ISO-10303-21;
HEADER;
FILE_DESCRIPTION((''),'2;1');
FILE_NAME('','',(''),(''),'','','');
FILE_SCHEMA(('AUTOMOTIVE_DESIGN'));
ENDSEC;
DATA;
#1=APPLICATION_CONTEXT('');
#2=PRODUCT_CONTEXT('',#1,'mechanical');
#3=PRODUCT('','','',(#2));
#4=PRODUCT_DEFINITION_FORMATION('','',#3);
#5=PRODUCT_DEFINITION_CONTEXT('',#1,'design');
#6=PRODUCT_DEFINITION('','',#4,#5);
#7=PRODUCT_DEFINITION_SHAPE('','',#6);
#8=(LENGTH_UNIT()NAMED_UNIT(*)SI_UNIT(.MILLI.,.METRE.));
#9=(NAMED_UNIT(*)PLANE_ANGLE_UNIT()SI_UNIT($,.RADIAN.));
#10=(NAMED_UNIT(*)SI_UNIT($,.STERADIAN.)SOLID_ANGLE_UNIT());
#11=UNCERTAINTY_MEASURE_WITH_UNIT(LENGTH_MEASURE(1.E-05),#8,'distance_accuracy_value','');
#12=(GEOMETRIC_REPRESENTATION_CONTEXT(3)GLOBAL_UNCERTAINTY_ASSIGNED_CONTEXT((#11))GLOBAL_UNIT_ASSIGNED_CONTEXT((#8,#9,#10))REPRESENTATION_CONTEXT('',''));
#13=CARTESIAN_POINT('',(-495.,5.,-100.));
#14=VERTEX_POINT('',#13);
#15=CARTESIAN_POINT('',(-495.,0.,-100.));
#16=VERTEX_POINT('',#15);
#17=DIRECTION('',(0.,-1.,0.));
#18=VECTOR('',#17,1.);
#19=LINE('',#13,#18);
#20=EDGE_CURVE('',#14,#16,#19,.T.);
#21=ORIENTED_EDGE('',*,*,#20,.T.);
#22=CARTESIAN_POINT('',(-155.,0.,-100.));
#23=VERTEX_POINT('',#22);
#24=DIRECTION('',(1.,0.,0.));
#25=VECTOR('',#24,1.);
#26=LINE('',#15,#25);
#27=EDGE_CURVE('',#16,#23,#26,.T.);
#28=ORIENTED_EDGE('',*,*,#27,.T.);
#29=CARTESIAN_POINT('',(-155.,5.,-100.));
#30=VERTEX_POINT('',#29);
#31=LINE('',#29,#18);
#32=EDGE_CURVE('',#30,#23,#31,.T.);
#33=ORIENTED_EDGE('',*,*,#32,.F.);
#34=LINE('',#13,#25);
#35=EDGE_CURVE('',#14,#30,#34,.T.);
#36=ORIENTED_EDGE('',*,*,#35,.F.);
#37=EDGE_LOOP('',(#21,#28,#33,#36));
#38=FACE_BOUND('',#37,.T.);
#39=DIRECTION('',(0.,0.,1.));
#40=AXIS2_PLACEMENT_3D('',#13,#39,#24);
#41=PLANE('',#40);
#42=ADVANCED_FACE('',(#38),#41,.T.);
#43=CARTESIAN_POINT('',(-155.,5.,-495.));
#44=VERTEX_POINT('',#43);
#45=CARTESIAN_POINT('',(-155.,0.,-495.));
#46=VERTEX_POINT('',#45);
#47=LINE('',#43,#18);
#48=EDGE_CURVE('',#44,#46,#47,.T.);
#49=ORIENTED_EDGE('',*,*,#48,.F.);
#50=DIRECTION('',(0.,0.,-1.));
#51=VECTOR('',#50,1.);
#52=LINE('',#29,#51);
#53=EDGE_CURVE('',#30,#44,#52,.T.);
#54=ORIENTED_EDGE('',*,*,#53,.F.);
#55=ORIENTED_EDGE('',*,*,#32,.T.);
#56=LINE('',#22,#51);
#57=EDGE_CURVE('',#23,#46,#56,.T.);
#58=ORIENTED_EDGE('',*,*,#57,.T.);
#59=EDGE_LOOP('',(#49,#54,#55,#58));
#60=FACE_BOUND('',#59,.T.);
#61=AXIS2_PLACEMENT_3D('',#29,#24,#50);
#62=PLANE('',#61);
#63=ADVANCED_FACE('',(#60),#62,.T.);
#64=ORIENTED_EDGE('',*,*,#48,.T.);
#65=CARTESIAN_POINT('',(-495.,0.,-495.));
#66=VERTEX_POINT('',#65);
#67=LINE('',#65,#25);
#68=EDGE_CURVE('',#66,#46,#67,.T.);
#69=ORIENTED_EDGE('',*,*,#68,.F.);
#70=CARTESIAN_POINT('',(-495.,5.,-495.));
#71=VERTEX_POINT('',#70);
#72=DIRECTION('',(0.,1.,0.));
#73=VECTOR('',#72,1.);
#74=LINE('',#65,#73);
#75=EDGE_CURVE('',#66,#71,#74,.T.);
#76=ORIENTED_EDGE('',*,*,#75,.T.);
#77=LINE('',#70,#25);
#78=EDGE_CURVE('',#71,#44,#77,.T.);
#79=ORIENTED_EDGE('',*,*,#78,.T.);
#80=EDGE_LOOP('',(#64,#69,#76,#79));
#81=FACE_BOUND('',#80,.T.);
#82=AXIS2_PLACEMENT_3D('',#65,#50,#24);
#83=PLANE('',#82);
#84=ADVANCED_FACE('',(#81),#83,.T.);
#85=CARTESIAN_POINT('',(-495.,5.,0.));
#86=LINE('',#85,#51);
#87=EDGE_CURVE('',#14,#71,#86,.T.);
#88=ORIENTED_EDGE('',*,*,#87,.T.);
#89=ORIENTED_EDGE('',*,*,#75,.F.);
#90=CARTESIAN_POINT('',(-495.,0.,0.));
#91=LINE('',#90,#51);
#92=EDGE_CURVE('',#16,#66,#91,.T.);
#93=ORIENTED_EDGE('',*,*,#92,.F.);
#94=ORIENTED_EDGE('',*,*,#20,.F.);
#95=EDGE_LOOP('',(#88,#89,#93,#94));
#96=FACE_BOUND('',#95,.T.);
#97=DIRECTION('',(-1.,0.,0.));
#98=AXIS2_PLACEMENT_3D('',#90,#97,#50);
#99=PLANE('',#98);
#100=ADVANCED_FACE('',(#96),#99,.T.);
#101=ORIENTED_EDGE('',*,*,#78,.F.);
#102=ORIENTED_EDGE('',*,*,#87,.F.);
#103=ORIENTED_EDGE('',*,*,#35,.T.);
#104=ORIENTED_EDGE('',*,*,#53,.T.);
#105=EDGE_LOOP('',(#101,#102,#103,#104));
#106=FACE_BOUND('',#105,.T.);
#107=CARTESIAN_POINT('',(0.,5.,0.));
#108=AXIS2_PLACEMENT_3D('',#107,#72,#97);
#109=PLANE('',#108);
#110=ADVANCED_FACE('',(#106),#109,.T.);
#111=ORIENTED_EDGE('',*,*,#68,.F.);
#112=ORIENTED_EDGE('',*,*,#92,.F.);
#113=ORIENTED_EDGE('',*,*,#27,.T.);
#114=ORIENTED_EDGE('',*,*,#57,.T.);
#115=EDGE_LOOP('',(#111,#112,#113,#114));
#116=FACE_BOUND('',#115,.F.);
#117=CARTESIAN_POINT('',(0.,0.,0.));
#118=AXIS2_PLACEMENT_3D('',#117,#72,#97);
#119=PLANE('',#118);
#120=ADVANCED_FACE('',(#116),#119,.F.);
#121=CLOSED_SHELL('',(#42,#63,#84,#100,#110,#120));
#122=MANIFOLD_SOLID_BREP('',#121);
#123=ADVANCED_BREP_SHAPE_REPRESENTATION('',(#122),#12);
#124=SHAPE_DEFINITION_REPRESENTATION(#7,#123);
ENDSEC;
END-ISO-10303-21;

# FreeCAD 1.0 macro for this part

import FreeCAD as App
import Part
import Sketcher
from FreeCAD import Vector
Q = App.Units.Quantity


def add_polygon(sketch, points):
    """Adds a closed chain of lines whose ends are joined by coincident constraints."""
    first, n = sketch.GeometryCount, len(points)
    for a, b in zip(points, points[1:] + points[:1]):
        sketch.addGeometry(Part.LineSegment(App.Vector(*a, 0), App.Vector(*b, 0)), False)
    for i in range(n):
        sketch.addConstraint(Sketcher.Constraint("Coincident", first + i, 2, first + (i + 1) % n, 1))

doc = App.newDocument("Part")
body = doc.addObject("PartDesign::Body", "Body")

# Sketch on XZ plane
sketch1 = body.newObject("Sketcher::SketchObject", "Sketch")
sketch1.AttachmentSupport = (doc.getObject("XZ_Plane"), [""])
sketch1.MapMode = "FlatFace"
add_polygon(sketch1, [(-495, 0), (0, 0), (0, -495), (-495, -495)])  # lines 0-3
sketch1.addConstraint(Sketcher.Constraint("Horizontal", 0))
sketch1.addConstraint(Sketcher.Constraint("Vertical", 1))
sketch1.addConstraint(Sketcher.Constraint("Horizontal", 2))
sketch1.addConstraint(Sketcher.Constraint("Vertical", 3))
sketch1.addConstraint(Sketcher.Constraint("Coincident", 0, 2, -1, 1))
sketch1.addConstraint(Sketcher.Constraint("Equal", 2, 1))
sketch1.addConstraint(Sketcher.Constraint("DistanceX", 0, 1, 0, 2, Q("495 mm")))
pad1 = body.newObject("PartDesign::Pad", "Pad")
pad1.Profile = sketch1
pad1.Length = 5
pad1.Reversed = True

# Sketch on XZ plane
sketch2 = body.newObject("Sketcher::SketchObject", "Sketch001")
sketch2.AttachmentSupport = (doc.getObject("XZ_Plane"), [""])
sketch2.MapMode = "FlatFace"
sketch2.AttachmentOffset = App.Placement(Vector(0, 0, -5), App.Rotation())
add_polygon(sketch2, [(-495, 0), (0, 0), (0, -100), (-495, -100)])  # lines 0-3
sketch2.addConstraint(Sketcher.Constraint("Horizontal", 0))
sketch2.addConstraint(Sketcher.Constraint("Vertical", 1))
sketch2.addConstraint(Sketcher.Constraint("Horizontal", 2))
sketch2.addConstraint(Sketcher.Constraint("Vertical", 3))
sketch2.addConstraint(Sketcher.Constraint("Coincident", 0, 2, -1, 1))
sketch2.addConstraint(Sketcher.Constraint("DistanceX", 0, 1, 0, 2, Q("495 mm")))
sketch2.addConstraint(Sketcher.Constraint("DistanceY", 1, 2, 1, 1, Q("100 mm")))
pocket1 = body.newObject("PartDesign::Pocket", "Pocket")
pocket1.Profile = sketch2
pocket1.Length = 5
pocket1.Reversed = True

# Sketch on XZ plane
sketch3 = body.newObject("Sketcher::SketchObject", "Sketch002")
sketch3.AttachmentSupport = (doc.getObject("XZ_Plane"), [""])
sketch3.MapMode = "FlatFace"
sketch3.AttachmentOffset = App.Placement(Vector(0, 0, -5), App.Rotation())
add_polygon(sketch3, [(-155, -100), (0, -100), (0, -495), (-155, -495)])  # lines 0-3
sketch3.addConstraint(Sketcher.Constraint("Horizontal", 0))
sketch3.addConstraint(Sketcher.Constraint("Vertical", 1))
sketch3.addConstraint(Sketcher.Constraint("Horizontal", 2))
sketch3.addConstraint(Sketcher.Constraint("Vertical", 3))
sketch3.addConstraint(Sketcher.Constraint("PointOnObject", 0, 2, -2))
sketch3.addConstraint(Sketcher.Constraint("DistanceX", 0, 1, 0, 2, Q("155 mm")))
sketch3.addConstraint(Sketcher.Constraint("DistanceY", 1, 2, 1, 1, Q("395 mm")))
sketch3.addConstraint(Sketcher.Constraint("DistanceY", 0, 2, -1, 1, Q("100 mm")))
pocket2 = body.newObject("PartDesign::Pocket", "Pocket001")
pocket2.Profile = sketch3
pocket2.Length = 5
pocket2.Reversed = True

doc.recompute()
